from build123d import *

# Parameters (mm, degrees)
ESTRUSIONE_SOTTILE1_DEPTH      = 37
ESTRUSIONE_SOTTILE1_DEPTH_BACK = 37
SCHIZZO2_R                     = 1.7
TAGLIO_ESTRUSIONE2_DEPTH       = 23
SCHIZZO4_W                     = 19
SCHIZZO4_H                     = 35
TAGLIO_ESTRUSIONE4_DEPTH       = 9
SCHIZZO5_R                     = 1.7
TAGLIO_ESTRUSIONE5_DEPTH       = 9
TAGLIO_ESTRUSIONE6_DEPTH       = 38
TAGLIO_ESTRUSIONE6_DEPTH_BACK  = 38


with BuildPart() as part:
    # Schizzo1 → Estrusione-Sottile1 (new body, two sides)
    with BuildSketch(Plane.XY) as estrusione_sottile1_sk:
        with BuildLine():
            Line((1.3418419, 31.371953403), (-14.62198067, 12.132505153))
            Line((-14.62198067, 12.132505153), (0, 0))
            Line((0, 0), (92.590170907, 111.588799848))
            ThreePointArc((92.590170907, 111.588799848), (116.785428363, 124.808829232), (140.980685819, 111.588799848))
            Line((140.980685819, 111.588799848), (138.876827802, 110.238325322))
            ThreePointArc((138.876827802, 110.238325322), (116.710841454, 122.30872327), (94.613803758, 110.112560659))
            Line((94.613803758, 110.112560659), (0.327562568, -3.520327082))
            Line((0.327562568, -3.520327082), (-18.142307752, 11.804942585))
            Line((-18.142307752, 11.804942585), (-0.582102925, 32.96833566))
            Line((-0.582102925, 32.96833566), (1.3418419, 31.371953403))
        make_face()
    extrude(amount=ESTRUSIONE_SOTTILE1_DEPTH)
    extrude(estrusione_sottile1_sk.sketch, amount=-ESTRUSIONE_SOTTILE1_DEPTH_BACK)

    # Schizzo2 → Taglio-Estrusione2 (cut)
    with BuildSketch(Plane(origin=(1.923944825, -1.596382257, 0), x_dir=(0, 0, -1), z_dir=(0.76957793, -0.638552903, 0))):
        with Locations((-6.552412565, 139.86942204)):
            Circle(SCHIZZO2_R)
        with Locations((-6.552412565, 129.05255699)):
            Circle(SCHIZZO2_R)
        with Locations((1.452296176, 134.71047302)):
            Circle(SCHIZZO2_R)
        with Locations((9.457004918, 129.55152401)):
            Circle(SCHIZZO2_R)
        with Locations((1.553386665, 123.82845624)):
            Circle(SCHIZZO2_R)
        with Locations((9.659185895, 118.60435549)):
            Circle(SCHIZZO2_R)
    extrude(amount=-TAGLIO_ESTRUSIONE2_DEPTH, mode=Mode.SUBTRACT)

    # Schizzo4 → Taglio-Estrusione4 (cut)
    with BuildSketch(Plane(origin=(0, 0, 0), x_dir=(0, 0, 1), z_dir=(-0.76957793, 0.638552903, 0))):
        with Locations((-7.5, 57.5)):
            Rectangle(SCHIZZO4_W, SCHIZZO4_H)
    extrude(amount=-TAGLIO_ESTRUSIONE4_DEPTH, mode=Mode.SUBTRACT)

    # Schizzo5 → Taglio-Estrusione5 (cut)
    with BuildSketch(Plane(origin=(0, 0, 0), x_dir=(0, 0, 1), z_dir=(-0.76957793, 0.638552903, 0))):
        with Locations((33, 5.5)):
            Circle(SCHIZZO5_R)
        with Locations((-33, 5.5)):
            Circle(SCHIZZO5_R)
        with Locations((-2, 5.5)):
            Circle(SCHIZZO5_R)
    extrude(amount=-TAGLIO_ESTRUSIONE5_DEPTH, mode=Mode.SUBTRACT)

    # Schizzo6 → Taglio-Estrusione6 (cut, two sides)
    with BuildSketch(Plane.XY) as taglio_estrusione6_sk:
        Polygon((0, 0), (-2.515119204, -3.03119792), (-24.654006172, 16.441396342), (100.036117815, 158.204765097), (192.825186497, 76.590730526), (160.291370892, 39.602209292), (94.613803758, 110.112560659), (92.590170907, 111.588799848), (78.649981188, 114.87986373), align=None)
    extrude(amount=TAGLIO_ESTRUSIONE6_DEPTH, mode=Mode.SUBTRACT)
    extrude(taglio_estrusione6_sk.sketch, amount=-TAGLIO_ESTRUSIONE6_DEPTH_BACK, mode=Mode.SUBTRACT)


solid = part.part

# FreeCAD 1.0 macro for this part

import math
import FreeCAD as App
import Part
import Sketcher

V = App.Vector
Q = App.Units.Quantity

doc = App.newDocument("Part")
body = doc.addObject("PartDesign::Body", "Body")

# Sketch on XY plane
sketch1 = doc.addObject("Sketcher::SketchObject", "Sketch")
body.addObject(sketch1)
sketch1.AttachmentSupport = (doc.XY_Plane, [""])
sketch1.MapMode = "FlatFace"
sketch1.addGeometry([
    Part.LineSegment(V(-14.621981, 12.132505, 0), V(1.341842, 31.371953, 0)),  # 0
    Part.LineSegment(V(1.341842, 31.371953, 0), V(-0.582103, 32.968336, 0)),  # 1
    Part.LineSegment(V(-0.582103, 32.968336, 0), V(-18.142308, 11.804943, 0)),  # 2
    Part.LineSegment(V(-18.142308, 11.804943, 0), V(0.327563, -3.520327, 0)),  # 3
    Part.LineSegment(V(0.327563, -3.520327, 0), V(94.613804, 110.112561, 0)),  # 4
    Part.ArcOfCircle(Part.Circle(V(116.785428, 96.057771, 0), V(0, 0, 1), 26.251058), math.radians(32.696561), math.radians(147.629027)),  # 5
    Part.LineSegment(V(138.876828, 110.238325, 0), V(140.980686, 111.5888, 0)),  # 6
    Part.ArcOfCircle(Part.Circle(V(116.785428, 96.057771, 0), V(0, 0, 1), 28.751058), math.radians(32.696561), math.radians(147.303439)),  # 7
    Part.LineSegment(V(92.590171, 111.5888, 0), V(0, 0, 0)),  # 8
    Part.LineSegment(V(0, 0, 0), V(-14.621981, 12.132505, 0)),  # 9
], False)
sketch1.addConstraint([
    Sketcher.Constraint("Coincident", 0, 2, 1, 1),
    Sketcher.Constraint("Coincident", 1, 2, 2, 1),
    Sketcher.Constraint("Coincident", 2, 2, 3, 1),
    Sketcher.Constraint("Coincident", 3, 2, 4, 1),
    Sketcher.Constraint("Coincident", 4, 2, 5, 2),
    Sketcher.Constraint("Coincident", 5, 1, 6, 1),
    Sketcher.Constraint("Coincident", 6, 2, 7, 1),
    Sketcher.Constraint("Coincident", 7, 2, 8, 1),
    Sketcher.Constraint("Coincident", 8, 2, 9, 1),
    Sketcher.Constraint("Coincident", 9, 2, 0, 1),
    Sketcher.Constraint("Coincident", 8, 2, -1, 1),
    Sketcher.Constraint("Coincident", 7, 3, 5, 3),
    Sketcher.Constraint("Perpendicular", 0, 1),
    Sketcher.Constraint("Perpendicular", 1, 2),
    Sketcher.Constraint("Perpendicular", 2, 3),
    Sketcher.Constraint("Perpendicular", 3, 4),
    Sketcher.Constraint("Parallel", 4, 8),
    Sketcher.Constraint("Perpendicular", 8, 9),
    Sketcher.Constraint("Horizontal", 6, 2, 7, 2),
    Sketcher.Constraint("Equal", 1, 6),
    Sketcher.Constraint("Distance", 0, Q("25 mm")),
    Sketcher.Constraint("Distance", 3, Q("24 mm")),
    Sketcher.Constraint("Distance", 8, Q("145 mm")),
    Sketcher.Constraint("Distance", 9, Q("19 mm")),
    Sketcher.Constraint("Distance", 1, Q("2.5 mm")),
    Sketcher.Constraint("Distance", 2, Q("27.5 mm")),
    Sketcher.Constraint("Radius", 5, Q("26.251058 mm")),
    Sketcher.Constraint("DistanceY", -1, 1, 6, 2, Q("111.5888 mm")),
    Sketcher.Constraint("DistanceY", 3, 2, 5, 3, Q("99.578098 mm")),
    Sketcher.Constraint("DistanceX", 5, 3, 5, 1, Q("22.091399 mm")),
])
pad1 = doc.addObject("PartDesign::Pad", "Pad")
body.addObject(pad1)
pad1.Profile = sketch1
pad1.Type = "TwoLengths"
pad1.Length = 37
pad1.Length2 = 37

# Sketch on an angled plane
sketch2 = doc.addObject("Sketcher::SketchObject", "Sketch001")
body.addObject(sketch2)
sketch2.Placement = App.Placement(V(1.923945, -1.596382, 0), App.Rotation(V(0, 0, -1), V(0.638552903, 0.76957793, 0), V(0.76957793, -0.638552903, 0), "ZXY"))
sketch2.addGeometry([
    Part.Circle(V(-6.552413, 139.869422, 0), V(0, 0, 1), 1.7),  # 0
    Part.Circle(V(-6.552413, 129.052557, 0), V(0, 0, 1), 1.7),  # 1
    Part.Circle(V(1.452296, 134.710473, 0), V(0, 0, 1), 1.7),  # 2
    Part.Circle(V(9.457005, 129.551524, 0), V(0, 0, 1), 1.7),  # 3
    Part.Circle(V(1.553387, 123.828456, 0), V(0, 0, 1), 1.7),  # 4
    Part.Circle(V(9.659186, 118.604356, 0), V(0, 0, 1), 1.7),  # 5
], False)
sketch2.addConstraint([
    Sketcher.Constraint("Equal", 0, 1),
    Sketcher.Constraint("Equal", 1, 2),
    Sketcher.Constraint("Equal", 2, 3),
    Sketcher.Constraint("Equal", 3, 4),
    Sketcher.Constraint("Equal", 4, 5),
    Sketcher.Constraint("Vertical", 0, 3, 1, 3),
    Sketcher.Constraint("Diameter", 0, Q("3.4 mm")),
    Sketcher.Constraint("DistanceY", 3, 3, 0, 3, Q("10.317898 mm")),
    Sketcher.Constraint("DistanceX", 1, 3, 4, 3, Q("8.105799 mm")),
    Sketcher.Constraint("DistanceY", 4, 3, 1, 3, Q("5.224101 mm")),
    Sketcher.Constraint("DistanceX", 4, 3, 5, 3, Q("8.105799 mm")),
    Sketcher.Constraint("DistanceY", 5, 3, 4, 3, Q("5.224101 mm")),
    Sketcher.Constraint("DistanceX", 0, 3, 2, 3, Q("8.004709 mm")),
    Sketcher.Constraint("DistanceY", 2, 3, 0, 3, Q("5.158949 mm")),
    Sketcher.Constraint("DistanceX", 2, 3, 3, 3, Q("8.004709 mm")),
    Sketcher.Constraint("DistanceY", 5, 3, 3, 3, Q("10.947169 mm")),
    Sketcher.Constraint("DistanceX", 0, 3, -1, 1, Q("6.552413 mm")),
    Sketcher.Constraint("DistanceY", -1, 1, 0, 3, Q("139.869422 mm")),
])
pocket1 = doc.addObject("PartDesign::Pocket", "Pocket")
body.addObject(pocket1)
pocket1.Profile = sketch2
pocket1.Length = 23

# Sketch on an angled plane
sketch3 = doc.addObject("Sketcher::SketchObject", "Sketch002")
body.addObject(sketch3)
sketch3.Placement = App.Placement(V(0, 0, 0), App.Rotation(V(0, 0, 1), V(0.638552903, 0.76957793, 0), V(-0.76957793, 0.638552903, 0), "ZXY"))
sketch3.addGeometry([
    Part.LineSegment(V(-17, 75, 0), V(-17, 40, 0)),
    Part.LineSegment(V(-17, 40, 0), V(2, 40, 0)),
    Part.LineSegment(V(2, 40, 0), V(2, 75, 0)),
    Part.LineSegment(V(2, 75, 0), V(-17, 75, 0)),
], False)
sketch3.addConstraint([
    Sketcher.Constraint("Coincident", 0, 2, 1, 1),
    Sketcher.Constraint("Coincident", 1, 2, 2, 1),
    Sketcher.Constraint("Coincident", 2, 2, 3, 1),
    Sketcher.Constraint("Coincident", 3, 2, 0, 1),
    Sketcher.Constraint("Vertical", 0),
    Sketcher.Constraint("Horizontal", 1),
    Sketcher.Constraint("Vertical", 2),
    Sketcher.Constraint("Horizontal", 3),
    Sketcher.Constraint("DistanceX", 1, 1, 1, 2, Q("19 mm")),
    Sketcher.Constraint("DistanceY", 0, 2, 0, 1, Q("35 mm")),
    Sketcher.Constraint("DistanceX", 0, 2, -1, 1, Q("17 mm")),
    Sketcher.Constraint("DistanceY", -1, 1, 0, 2, Q("40 mm")),
])
pocket2 = doc.addObject("PartDesign::Pocket", "Pocket001")
body.addObject(pocket2)
pocket2.Profile = sketch3
pocket2.Length = 9

# Sketch on an angled plane
sketch4 = doc.addObject("Sketcher::SketchObject", "Sketch003")
body.addObject(sketch4)
sketch4.Placement = App.Placement(V(0, 0, 0), App.Rotation(V(0, 0, 1), V(0.638552903, 0.76957793, 0), V(-0.76957793, 0.638552903, 0), "ZXY"))
sketch4.addGeometry([
    Part.Circle(V(33, 5.5, 0), V(0, 0, 1), 1.7),
    Part.Circle(V(-33, 5.5, 0), V(0, 0, 1), 1.7),
    Part.Circle(V(-2, 5.5, 0), V(0, 0, 1), 1.7),
], False)
sketch4.addConstraint([
    Sketcher.Constraint("Equal", 0, 1),
    Sketcher.Constraint("Equal", 1, 2),
    Sketcher.Constraint("Symmetric", 0, 3, 1, 3, -2),
    Sketcher.Constraint("Horizontal", 1, 3, 2, 3),
    Sketcher.Constraint("Diameter", 0, Q("3.4 mm")),
    Sketcher.Constraint("DistanceX", -1, 1, 0, 3, Q("33 mm")),
    Sketcher.Constraint("DistanceX", 2, 3, -1, 1, Q("2 mm")),
    Sketcher.Constraint("DistanceY", -1, 1, 0, 3, Q("5.5 mm")),
])
pocket3 = doc.addObject("PartDesign::Pocket", "Pocket002")
body.addObject(pocket3)
pocket3.Profile = sketch4
pocket3.Length = 9

# Sketch on XY plane
sketch5 = doc.addObject("Sketcher::SketchObject", "Sketch004")
body.addObject(sketch5)
sketch5.AttachmentSupport = (doc.XY_Plane, [""])
sketch5.MapMode = "FlatFace"
sketch5.addGeometry([
    Part.LineSegment(V(-2.515119, -3.031198, 0), V(0, 0, 0)),  # 0
    Part.LineSegment(V(0, 0, 0), V(78.649981, 114.879864, 0)),  # 1
    Part.LineSegment(V(78.649981, 114.879864, 0), V(92.590171, 111.5888, 0)),  # 2
    Part.LineSegment(V(92.590171, 111.5888, 0), V(94.613804, 110.112561, 0)),  # 3
    Part.LineSegment(V(94.613804, 110.112561, 0), V(160.291371, 39.602209, 0)),  # 4
    Part.LineSegment(V(160.291371, 39.602209, 0), V(192.825186, 76.590731, 0)),  # 5
    Part.LineSegment(V(192.825186, 76.590731, 0), V(100.036118, 158.204765, 0)),  # 6
    Part.LineSegment(V(100.036118, 158.204765, 0), V(-24.654006, 16.441396, 0)),  # 7
    Part.LineSegment(V(-24.654006, 16.441396, 0), V(-2.515119, -3.031198, 0)),  # 8
], False)
sketch5.addConstraint([
    Sketcher.Constraint("Coincident", 0, 2, 1, 1),
    Sketcher.Constraint("Coincident", 1, 2, 2, 1),
    Sketcher.Constraint("Coincident", 2, 2, 3, 1),
    Sketcher.Constraint("Coincident", 3, 2, 4, 1),
    Sketcher.Constraint("Coincident", 4, 2, 5, 1),
    Sketcher.Constraint("Coincident", 5, 2, 6, 1),
    Sketcher.Constraint("Coincident", 6, 2, 7, 1),
    Sketcher.Constraint("Coincident", 7, 2, 8, 1),
    Sketcher.Constraint("Coincident", 8, 2, 0, 1),
    Sketcher.Constraint("Coincident", 0, 2, -1, 1),
    Sketcher.Constraint("Perpendicular", 5, 6),
    Sketcher.Constraint("Perpendicular", 6, 7),
    Sketcher.Constraint("Perpendicular", 7, 8),
    Sketcher.Constraint("Distance", 8, Q("29.484102 mm")),
    Sketcher.Constraint("DistanceY", -1, 1, 2, 2, Q("111.5888 mm")),
    Sketcher.Constraint("DistanceX", 2, 2, 4, 2, Q("67.7012 mm")),
    Sketcher.Constraint("DistanceY", 1, 2, 6, 2, Q("43.324901 mm")),
    Sketcher.Constraint("DistanceX", 8, 2, 1, 2, Q("81.1651 mm")),
    Sketcher.Constraint("Distance", 0, Q("3.93878 mm")),
    Sketcher.Constraint("Distance", 1, Q("139.223571 mm")),
    Sketcher.Constraint("Distance", 3, Q("2.50487 mm")),
    Sketcher.Constraint("Distance", 5, Q("49.26053 mm")),
    Sketcher.Constraint("Distance", 6, Q("123.57452 mm")),
    Sketcher.Constraint("DistanceX", -1, 1, 1, 2, Q("78.649981 mm")),
    Sketcher.Constraint("DistanceX", -1, 1, 2, 2, Q("92.590171 mm")),
    Sketcher.Constraint("DistanceY", -1, 1, 3, 2, Q("110.112561 mm")),
])
pocket4 = doc.addObject("PartDesign::Pocket", "Pocket003")
body.addObject(pocket4)
pocket4.Profile = sketch5
pocket4.Type = "ThroughAll"
pocket4.Midplane = True

doc.recompute()
